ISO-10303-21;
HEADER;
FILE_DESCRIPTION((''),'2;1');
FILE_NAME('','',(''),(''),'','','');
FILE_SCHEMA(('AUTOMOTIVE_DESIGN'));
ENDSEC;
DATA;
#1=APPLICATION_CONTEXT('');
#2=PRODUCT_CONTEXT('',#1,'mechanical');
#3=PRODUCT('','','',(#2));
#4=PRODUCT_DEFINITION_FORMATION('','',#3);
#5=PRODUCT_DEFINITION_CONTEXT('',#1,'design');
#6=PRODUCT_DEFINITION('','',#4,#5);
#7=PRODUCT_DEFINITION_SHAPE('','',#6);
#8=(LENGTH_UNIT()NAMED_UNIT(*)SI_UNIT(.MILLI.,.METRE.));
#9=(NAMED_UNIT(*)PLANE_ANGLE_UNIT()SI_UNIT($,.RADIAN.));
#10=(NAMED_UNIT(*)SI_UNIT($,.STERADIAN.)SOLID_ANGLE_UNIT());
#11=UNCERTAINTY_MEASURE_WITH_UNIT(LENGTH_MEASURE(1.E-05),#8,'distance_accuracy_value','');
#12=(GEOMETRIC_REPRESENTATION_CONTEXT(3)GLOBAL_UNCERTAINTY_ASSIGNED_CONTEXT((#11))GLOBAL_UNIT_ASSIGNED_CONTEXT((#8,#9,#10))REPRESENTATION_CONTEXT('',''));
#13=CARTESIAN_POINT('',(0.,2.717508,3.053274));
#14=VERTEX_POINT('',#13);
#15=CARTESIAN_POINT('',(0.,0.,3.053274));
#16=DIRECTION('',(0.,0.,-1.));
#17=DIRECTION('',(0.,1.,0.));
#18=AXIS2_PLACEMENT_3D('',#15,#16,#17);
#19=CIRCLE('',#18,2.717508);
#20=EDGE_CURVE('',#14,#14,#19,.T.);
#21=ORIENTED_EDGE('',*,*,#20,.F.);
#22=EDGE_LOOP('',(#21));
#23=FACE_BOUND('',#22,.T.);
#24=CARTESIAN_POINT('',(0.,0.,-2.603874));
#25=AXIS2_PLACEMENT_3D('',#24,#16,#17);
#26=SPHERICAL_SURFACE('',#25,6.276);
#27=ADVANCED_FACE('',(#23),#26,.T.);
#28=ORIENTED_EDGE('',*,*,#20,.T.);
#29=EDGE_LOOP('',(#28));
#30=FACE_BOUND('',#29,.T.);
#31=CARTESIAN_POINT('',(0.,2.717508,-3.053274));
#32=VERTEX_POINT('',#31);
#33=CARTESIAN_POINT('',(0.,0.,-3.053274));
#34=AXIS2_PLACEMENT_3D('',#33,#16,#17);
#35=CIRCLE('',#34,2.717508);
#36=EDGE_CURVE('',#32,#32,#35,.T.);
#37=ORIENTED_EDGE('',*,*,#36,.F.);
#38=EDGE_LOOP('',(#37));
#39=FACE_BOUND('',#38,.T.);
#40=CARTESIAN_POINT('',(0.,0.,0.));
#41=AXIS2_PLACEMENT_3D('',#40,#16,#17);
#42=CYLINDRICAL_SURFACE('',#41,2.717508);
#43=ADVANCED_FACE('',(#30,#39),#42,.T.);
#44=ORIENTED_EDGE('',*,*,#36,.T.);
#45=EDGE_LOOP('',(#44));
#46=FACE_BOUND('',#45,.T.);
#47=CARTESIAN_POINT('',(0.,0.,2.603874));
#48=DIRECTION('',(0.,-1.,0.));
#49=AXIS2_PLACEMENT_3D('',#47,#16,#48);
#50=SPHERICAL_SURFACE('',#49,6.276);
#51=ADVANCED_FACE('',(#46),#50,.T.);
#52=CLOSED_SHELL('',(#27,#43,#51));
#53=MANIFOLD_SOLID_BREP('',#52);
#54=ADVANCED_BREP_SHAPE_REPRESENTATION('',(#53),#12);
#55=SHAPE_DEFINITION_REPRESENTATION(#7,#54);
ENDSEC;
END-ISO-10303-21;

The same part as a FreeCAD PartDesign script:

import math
import FreeCAD as App
import Part
import Sketcher

doc = App.newDocument("Part")
body = doc.addObject("PartDesign::Body", "Body")

# Sketch on YZ plane
sketch1 = body.newObject("Sketcher::SketchObject", "Sketch")
sketch1.AttachmentSupport = (doc.getObject("YZ_Plane"), [""])
sketch1.MapMode = "FlatFace"
sketch1.addGeometry([
    Part.ArcOfCircle(Part.Circle(App.Vector(0, 2.6, 0), App.Vector(0, 0, 1), 6.3), math.radians(-90), math.radians(-64)),
    Part.LineSegment(App.Vector(2.7, -3.1, 0), App.Vector(2.7, 3.1, 0)),
    Part.ArcOfCircle(Part.Circle(App.Vector(0, -2.6, 0), App.Vector(0, 0, 1), 6.3), math.radians(64), math.radians(90)),
    Part.LineSegment(App.Vector(0, 3.7, 0), App.Vector(0, -3.7, 0)),
], False)
sketch1.addConstraint([
    Sketcher.Constraint("Coincident", 0, 2, 1, 1),
    Sketcher.Constraint("Coincident", 1, 2, 2, 1),
    Sketcher.Constraint("Coincident", 2, 2, 3, 1),
    Sketcher.Constraint("Coincident", 3, 2, 0, 1),
    Sketcher.Constraint("Vertical", 1),
    Sketcher.Constraint("Vertical", 3),
    Sketcher.Constraint("Equal", 0, 2),
    Sketcher.Constraint("Symmetric", 0, 3, 2, 3, -1, 1),
    Sketcher.Constraint("PointOnObject", 0, 3, -2),
    Sketcher.Constraint("PointOnObject", 2, 2, -2),
    Sketcher.Constraint("Radius", 0, 6.276),
    Sketcher.Constraint("DistanceY", 3, 2, 3, 1, 7.344252),
    Sketcher.Constraint("DistanceY", 0, 2, 2, 3, 0.4494),
])
revolution = body.newObject("PartDesign::Revolution", "Revolution")
revolution.Profile = sketch1
revolution.ReferenceAxis = (sketch1, ["V_Axis"])
revolution.Angle = 360

doc.recompute()
